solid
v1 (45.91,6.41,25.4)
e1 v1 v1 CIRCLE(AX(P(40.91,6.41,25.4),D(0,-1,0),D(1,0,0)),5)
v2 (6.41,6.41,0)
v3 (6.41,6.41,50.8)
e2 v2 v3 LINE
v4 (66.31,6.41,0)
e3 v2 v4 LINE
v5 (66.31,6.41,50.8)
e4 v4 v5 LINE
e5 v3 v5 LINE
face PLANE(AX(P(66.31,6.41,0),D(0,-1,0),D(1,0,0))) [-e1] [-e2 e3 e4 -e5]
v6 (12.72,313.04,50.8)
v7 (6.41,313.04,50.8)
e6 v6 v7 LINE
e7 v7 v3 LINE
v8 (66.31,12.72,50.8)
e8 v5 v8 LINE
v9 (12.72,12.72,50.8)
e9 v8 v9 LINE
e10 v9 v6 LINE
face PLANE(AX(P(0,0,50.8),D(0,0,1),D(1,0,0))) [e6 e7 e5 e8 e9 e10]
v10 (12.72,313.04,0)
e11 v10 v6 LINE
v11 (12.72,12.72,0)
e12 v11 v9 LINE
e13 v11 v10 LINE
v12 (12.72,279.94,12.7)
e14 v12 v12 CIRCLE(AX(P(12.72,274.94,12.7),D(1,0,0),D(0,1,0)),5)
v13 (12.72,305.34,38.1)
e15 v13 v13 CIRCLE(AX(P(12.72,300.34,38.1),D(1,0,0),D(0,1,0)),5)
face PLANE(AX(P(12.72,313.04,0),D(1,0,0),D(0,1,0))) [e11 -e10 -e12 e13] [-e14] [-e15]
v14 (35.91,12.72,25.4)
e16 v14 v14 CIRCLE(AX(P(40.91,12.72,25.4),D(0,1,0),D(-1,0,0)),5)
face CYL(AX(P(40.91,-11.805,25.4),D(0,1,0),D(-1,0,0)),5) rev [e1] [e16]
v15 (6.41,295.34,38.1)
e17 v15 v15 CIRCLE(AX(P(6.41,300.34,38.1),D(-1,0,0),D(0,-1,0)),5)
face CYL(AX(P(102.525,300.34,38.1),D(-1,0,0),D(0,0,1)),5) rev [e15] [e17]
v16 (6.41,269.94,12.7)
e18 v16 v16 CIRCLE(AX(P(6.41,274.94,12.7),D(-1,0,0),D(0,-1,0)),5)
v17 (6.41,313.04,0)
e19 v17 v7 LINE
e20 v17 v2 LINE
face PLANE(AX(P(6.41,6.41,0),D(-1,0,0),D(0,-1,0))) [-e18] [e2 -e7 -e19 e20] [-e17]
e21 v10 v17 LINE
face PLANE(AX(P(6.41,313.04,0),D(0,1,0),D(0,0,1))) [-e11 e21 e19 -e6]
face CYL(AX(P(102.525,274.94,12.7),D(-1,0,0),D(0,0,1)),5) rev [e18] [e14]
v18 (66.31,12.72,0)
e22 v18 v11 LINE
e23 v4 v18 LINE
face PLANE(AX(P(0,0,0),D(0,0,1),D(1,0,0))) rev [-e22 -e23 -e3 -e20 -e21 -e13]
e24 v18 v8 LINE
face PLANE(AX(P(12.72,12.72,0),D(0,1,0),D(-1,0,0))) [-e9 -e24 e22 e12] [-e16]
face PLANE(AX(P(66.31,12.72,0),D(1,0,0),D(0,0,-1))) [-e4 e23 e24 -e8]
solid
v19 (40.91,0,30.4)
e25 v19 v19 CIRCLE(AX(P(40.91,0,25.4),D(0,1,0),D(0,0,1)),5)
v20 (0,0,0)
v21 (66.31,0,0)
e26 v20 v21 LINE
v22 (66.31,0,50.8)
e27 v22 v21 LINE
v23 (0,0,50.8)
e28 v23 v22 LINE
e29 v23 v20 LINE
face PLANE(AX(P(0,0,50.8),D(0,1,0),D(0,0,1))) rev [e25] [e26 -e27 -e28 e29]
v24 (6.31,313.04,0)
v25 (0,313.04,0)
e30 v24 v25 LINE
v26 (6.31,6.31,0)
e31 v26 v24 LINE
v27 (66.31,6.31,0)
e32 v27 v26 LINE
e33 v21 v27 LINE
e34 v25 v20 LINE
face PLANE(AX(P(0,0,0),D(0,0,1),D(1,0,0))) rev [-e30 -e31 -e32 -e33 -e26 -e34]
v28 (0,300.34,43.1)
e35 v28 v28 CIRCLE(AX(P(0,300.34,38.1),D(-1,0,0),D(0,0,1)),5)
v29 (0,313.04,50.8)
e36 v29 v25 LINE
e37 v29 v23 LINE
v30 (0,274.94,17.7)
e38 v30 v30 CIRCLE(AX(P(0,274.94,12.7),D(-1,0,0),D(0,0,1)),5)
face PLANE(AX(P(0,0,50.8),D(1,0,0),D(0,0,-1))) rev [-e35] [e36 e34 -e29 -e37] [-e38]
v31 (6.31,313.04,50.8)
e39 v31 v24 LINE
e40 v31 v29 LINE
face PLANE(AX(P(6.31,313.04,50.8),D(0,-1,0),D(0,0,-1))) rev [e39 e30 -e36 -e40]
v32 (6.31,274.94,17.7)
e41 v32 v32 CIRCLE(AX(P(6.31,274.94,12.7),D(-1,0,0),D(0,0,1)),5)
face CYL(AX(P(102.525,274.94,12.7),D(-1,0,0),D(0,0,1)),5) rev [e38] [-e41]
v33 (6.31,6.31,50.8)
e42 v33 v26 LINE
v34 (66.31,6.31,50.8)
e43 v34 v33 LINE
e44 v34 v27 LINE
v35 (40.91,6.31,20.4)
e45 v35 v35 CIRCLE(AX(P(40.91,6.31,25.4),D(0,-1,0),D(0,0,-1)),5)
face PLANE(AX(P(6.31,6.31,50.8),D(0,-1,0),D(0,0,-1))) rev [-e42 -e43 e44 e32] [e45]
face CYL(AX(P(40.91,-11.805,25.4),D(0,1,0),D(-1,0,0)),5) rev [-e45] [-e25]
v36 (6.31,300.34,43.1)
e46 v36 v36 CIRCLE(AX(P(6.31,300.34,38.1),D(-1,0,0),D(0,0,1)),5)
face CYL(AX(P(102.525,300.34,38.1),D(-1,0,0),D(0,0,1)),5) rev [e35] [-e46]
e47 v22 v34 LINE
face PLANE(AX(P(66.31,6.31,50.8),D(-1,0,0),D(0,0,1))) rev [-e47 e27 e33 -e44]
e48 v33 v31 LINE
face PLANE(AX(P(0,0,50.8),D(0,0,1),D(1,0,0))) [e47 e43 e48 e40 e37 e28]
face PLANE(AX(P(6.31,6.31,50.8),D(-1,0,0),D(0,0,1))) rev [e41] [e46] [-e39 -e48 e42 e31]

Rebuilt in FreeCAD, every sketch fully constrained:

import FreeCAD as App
import Part
import Sketcher

V = App.Vector

doc = App.newDocument("Part")
params = doc.addObject("Spreadsheet::Sheet", "Params")
for row, (alias, value) in enumerate([
    ("sketch1_width", "60 mm"),
    ("sketch1_width2", "66.31 mm"),
    ("sketch1_height", "306.73 mm"),
    ("pad1_length", "50.8 mm"),
    ("sketch2_width", "59.9 mm"),
    ("sketch2_width2", "6.31 mm"),
    ("sketch2_height", "306.63 mm"),
    ("pad2_length", "50.8 mm"),
    ("sketch3_diameter", "10 mm"),
    ("pad3_length", "102.525 mm"),
    ("sketch4_diameter", "10 mm"),
    ("pad4_length", "24.525 mm"),
], start=1):
    params.set(f"A{row}", alias)
    params.set(f"B{row}", "=" + value)
    params.setAlias(f"B{row}", alias)

body = doc.addObject("PartDesign::Body", "Body")

# Sketch on XY plane
sketch1 = body.newObject("Sketcher::SketchObject", "Sketch")
sketch1.AttachmentSupport = (doc.getObject("XY_Plane"), [""])
sketch1.MapMode = "FlatFace"
sketch1.addGeometry([
    Part.LineSegment(V(0, 0, 0), V(66, 0, 0)),  # 0
    Part.LineSegment(V(66, 0, 0), V(66, 6, 0)),  # 1
    Part.LineSegment(V(66, 6, 0), V(6, 6, 0)),  # 2
    Part.LineSegment(V(6, 6, 0), V(6, 313, 0)),  # 3
    Part.LineSegment(V(6, 313, 0), V(0, 313, 0)),  # 4
    Part.LineSegment(V(0, 313, 0), V(0, 0, 0)),  # 5
], False)
sketch1.addConstraint([
    Sketcher.Constraint("Coincident", 0, 2, 1, 1),
    Sketcher.Constraint("Coincident", 1, 2, 2, 1),
    Sketcher.Constraint("Coincident", 2, 2, 3, 1),
    Sketcher.Constraint("Coincident", 3, 2, 4, 1),
    Sketcher.Constraint("Coincident", 4, 2, 5, 1),
    Sketcher.Constraint("Coincident", 5, 2, 0, 1),
    Sketcher.Constraint("Horizontal", 0),
    Sketcher.Constraint("Vertical", 1),
    Sketcher.Constraint("Horizontal", 2),
    Sketcher.Constraint("Vertical", 3),
    Sketcher.Constraint("Horizontal", 4),
    Sketcher.Constraint("Vertical", 5),
    Sketcher.Constraint("Coincident", 5, 2, -1, 1),
    Sketcher.Constraint("Equal", 4, 1),
    Sketcher.Constraint("DistanceX", 2, 2, 2, 1, 60.0),
    Sketcher.Constraint("DistanceX", 0, 1, 0, 2, 66.31),
    Sketcher.Constraint("DistanceY", 3, 1, 3, 2, 306.73),
])
sketch1.setExpression("Constraints[14]", "Params.sketch1_width")
sketch1.setExpression("Constraints[15]", "Params.sketch1_width2")
sketch1.setExpression("Constraints[16]", "Params.sketch1_height")
pad1 = body.newObject("PartDesign::Pad", "Pad")
pad1.Profile = sketch1
pad1.setExpression("Length", "Params.pad1_length")
body2 = doc.addObject("PartDesign::Body", "Body001")

# Sketch on XY plane
sketch2 = body2.newObject("Sketcher::SketchObject", "Sketch001")
sketch2.AttachmentSupport = (doc.getObject("XY_Plane001"), [""])
sketch2.MapMode = "FlatFace"
sketch2.AttachmentOffset = App.Placement(V(0, 0, 50.8), App.Rotation())
sketch2.addGeometry([
    Part.LineSegment(V(13, 313, 0), V(6, 313, 0)),  # 0
    Part.LineSegment(V(6, 313, 0), V(6, 6, 0)),  # 1
    Part.LineSegment(V(6, 6, 0), V(66, 6, 0)),  # 2
    Part.LineSegment(V(66, 6, 0), V(66, 13, 0)),  # 3
    Part.LineSegment(V(66, 13, 0), V(13, 13, 0)),  # 4
    Part.LineSegment(V(13, 13, 0), V(13, 313, 0)),  # 5
], False)
sketch2.addConstraint([
    Sketcher.Constraint("Coincident", 0, 2, 1, 1),
    Sketcher.Constraint("Coincident", 1, 2, 2, 1),
    Sketcher.Constraint("Coincident", 2, 2, 3, 1),
    Sketcher.Constraint("Coincident", 3, 2, 4, 1),
    Sketcher.Constraint("Coincident", 4, 2, 5, 1),
    Sketcher.Constraint("Coincident", 5, 2, 0, 1),
    Sketcher.Constraint("Horizontal", 0),
    Sketcher.Constraint("Vertical", 1),
    Sketcher.Constraint("Horizontal", 2),
    Sketcher.Constraint("Vertical", 3),
    Sketcher.Constraint("Horizontal", 4),
    Sketcher.Constraint("Vertical", 5),
    Sketcher.Constraint("Equal", 0, 3),
    Sketcher.Constraint("DistanceX", 2, 1, 2, 2, 59.9),
    Sketcher.Constraint("DistanceX", 0, 2, 0, 1, 6.31),
    Sketcher.Constraint("DistanceY", 1, 2, 1, 1, 306.63),
    Sketcher.Constraint("DistanceX", -1, 1, 0, 2, 6.41),
    Sketcher.Constraint("DistanceY", -1, 1, 0, 2, 313.04),
])
sketch2.setExpression("Constraints[13]", "Params.sketch2_width")
sketch2.setExpression("Constraints[14]", "Params.sketch2_width2")
sketch2.setExpression("Constraints[15]", "Params.sketch2_height")
pad2 = body2.newObject("PartDesign::Pad", "Pad001")
pad2.Profile = sketch2
pad2.setExpression("Length", "Params.pad2_length")
pad2.Reversed = True
body3 = doc.addObject("PartDesign::Body", "Body002")
body3.AllowCompound = True

# Sketch on YZ plane
sketch3 = body3.newObject("Sketcher::SketchObject", "Sketch002")
sketch3.AttachmentSupport = (doc.getObject("YZ_Plane002"), [""])
sketch3.MapMode = "FlatFace"
sketch3.addGeometry([
    Part.Circle(V(275, 13, 0), V(0, 0, 1), 5),
    Part.Circle(V(300, 38, 0), V(0, 0, 1), 5),
], False)
sketch3.addConstraint([
    Sketcher.Constraint("Equal", 0, 1),
    Sketcher.Constraint("Diameter", 0, 10.0),
    Sketcher.Constraint("DistanceY", -1, 1, 0, 3, 12.7),
    Sketcher.Constraint("DistanceY", -1, 1, 1, 3, 38.1),
    Sketcher.Constraint("DistanceX", 0, 3, 1, 3, 25.4),
    Sketcher.Constraint("DistanceX", -1, 1, 0, 3, 274.94),
])
sketch3.setExpression("Constraints[1]", "Params.sketch3_diameter")
pad3 = body3.newObject("PartDesign::Pad", "Pad002")
pad3.Profile = sketch3
pad3.setExpression("Length", "Params.pad3_length")
doc.recompute()

body4 = doc.addObject("PartDesign::Body", "Body003")
body4.BaseFeature = body3
boolean = body.newObject("PartDesign::Boolean", "Boolean")
boolean.Type = "Cut"
boolean.addObjects([body4])
doc.recompute()

boolean2 = body2.newObject("PartDesign::Boolean", "Boolean001")
boolean2.Type = "Cut"
boolean2.addObjects([body3])
body5 = doc.addObject("PartDesign::Body", "Body004")

# Sketch on XZ plane
sketch4 = body5.newObject("Sketcher::SketchObject", "Sketch003")
sketch4.AttachmentSupport = (doc.getObject("XZ_Plane004"), [""])
sketch4.MapMode = "FlatFace"
sketch4.AttachmentOffset = App.Placement(V(0, 0, -12.72), App.Rotation())
sketch4.addGeometry(Part.Circle(V(41, 25, 0), V(0, 0, 1), 5), False)
sketch4.addConstraint([
    Sketcher.Constraint("Diameter", 0, 10.0),
    Sketcher.Constraint("DistanceY", -1, 1, 0, 3, 25.4),
    Sketcher.Constraint("DistanceX", -1, 1, 0, 3, 40.91),
])
sketch4.setExpression("Constraints[0]", "Params.sketch4_diameter")
pad4 = body5.newObject("PartDesign::Pad", "Pad003")
pad4.Profile = sketch4
pad4.setExpression("Length", "Params.pad4_length")
doc.recompute()

body6 = doc.addObject("PartDesign::Body", "Body005")
body6.BaseFeature = body5
boolean3 = body.newObject("PartDesign::Boolean", "Boolean002")
boolean3.Type = "Cut"
boolean3.addObjects([body6])
doc.recompute()

boolean4 = body2.newObject("PartDesign::Boolean", "Boolean003")
boolean4.Type = "Cut"
boolean4.addObjects([body5])

doc.recompute()
